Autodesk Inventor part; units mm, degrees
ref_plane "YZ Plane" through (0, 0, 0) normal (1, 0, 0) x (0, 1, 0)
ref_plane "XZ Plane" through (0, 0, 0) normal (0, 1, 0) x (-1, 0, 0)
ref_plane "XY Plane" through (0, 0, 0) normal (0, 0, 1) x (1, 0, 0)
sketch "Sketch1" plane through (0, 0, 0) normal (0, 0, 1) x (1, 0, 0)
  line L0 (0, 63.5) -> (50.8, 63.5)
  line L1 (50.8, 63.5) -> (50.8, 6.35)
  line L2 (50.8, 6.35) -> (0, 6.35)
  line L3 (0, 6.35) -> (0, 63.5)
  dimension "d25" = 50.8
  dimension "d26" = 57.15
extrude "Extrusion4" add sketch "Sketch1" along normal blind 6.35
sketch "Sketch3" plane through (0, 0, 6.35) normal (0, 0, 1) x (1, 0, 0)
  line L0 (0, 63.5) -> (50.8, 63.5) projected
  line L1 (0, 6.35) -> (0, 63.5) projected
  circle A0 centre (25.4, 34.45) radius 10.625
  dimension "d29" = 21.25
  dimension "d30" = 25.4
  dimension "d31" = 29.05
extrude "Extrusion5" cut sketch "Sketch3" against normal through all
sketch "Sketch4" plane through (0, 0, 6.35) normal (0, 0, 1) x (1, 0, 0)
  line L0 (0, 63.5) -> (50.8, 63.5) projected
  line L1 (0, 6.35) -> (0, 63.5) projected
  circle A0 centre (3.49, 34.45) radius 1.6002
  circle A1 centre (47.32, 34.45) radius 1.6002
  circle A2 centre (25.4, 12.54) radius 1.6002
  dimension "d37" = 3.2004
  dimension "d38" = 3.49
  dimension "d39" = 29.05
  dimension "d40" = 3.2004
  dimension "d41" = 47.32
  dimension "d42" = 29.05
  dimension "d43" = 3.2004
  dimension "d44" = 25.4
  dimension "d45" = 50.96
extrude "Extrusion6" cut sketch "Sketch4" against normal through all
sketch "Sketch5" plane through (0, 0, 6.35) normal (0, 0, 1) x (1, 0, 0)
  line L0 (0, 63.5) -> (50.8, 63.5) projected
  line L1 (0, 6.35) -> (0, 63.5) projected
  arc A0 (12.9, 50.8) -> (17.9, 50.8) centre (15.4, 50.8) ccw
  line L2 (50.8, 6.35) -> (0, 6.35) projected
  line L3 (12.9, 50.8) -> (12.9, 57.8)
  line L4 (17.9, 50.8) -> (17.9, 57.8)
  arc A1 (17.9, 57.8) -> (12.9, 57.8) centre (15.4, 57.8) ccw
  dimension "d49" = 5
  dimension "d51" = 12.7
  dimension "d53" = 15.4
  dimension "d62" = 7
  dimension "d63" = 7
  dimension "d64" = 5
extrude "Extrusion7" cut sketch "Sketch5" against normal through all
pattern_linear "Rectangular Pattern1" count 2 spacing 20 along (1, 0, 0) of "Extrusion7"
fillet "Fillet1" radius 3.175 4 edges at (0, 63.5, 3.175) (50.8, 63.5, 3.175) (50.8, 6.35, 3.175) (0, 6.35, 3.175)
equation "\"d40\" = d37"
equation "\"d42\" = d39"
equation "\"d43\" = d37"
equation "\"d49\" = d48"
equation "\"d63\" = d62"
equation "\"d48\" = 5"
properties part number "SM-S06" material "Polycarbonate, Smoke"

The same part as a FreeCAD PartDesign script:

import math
import FreeCAD as App
import Part
import Sketcher
from FreeCAD import Vector
Q = App.Units.Quantity


def edges_at(feature, points):
    """Names of the edges that pass closest to the given points."""
    edges = feature.Shape.Edges
    near = lambda p: min(range(len(edges)), key=lambda i: edges[i].distToShape(Part.Vertex(*p))[0])
    return sorted({f"Edge{near(p) + 1}" for p in points})


def add_polygon(sketch, points):
    """Adds a closed chain of lines whose ends are joined by coincident constraints."""
    first, n = sketch.GeometryCount, len(points)
    for a, b in zip(points, points[1:] + points[:1]):
        sketch.addGeometry(Part.LineSegment(App.Vector(*a, 0), App.Vector(*b, 0)), False)
    for i in range(n):
        sketch.addConstraint(Sketcher.Constraint("Coincident", first + i, 2, first + (i + 1) % n, 1))

doc = App.newDocument("Part")
params = doc.addObject("Spreadsheet::Sheet", "Params")
for row, (alias, value) in enumerate([
    ("sketch1_width", "2 in"),
    ("sketch1_height", "2.25 in"),
    ("pad1_length", "0.25 in"),
    ("sketch3_diameter", "0.126 in"),
    ("linearpattern_pitch", "0.7874016 in"),
    ("fillet_radius", "0.125 in"),
], start=1):
    params.set(f"A{row}", alias)
    params.set(f"B{row}", "=" + value)
    params.setAlias(f"B{row}", alias)

body = doc.addObject("PartDesign::Body", "Body")

# Sketch on XY plane
sketch1 = body.newObject("Sketcher::SketchObject", "Sketch")
sketch1.AttachmentSupport = (doc.getObject("XY_Plane"), [""])
sketch1.MapMode = "FlatFace"
add_polygon(sketch1, [(51, 64), (0, 64), (0, 6), (51, 6)])  # lines 0-3
sketch1.addConstraint(Sketcher.Constraint("Horizontal", 0))
sketch1.addConstraint(Sketcher.Constraint("Vertical", 1))
sketch1.addConstraint(Sketcher.Constraint("Horizontal", 2))
sketch1.addConstraint(Sketcher.Constraint("Vertical", 3))
sketch1.addConstraint(Sketcher.Constraint("PointOnObject", 0, 2, -2))
sketch1.addConstraint(Sketcher.Constraint("DistanceX", 0, 2, 0, 1, Q("2 in")))
sketch1.addConstraint(Sketcher.Constraint("DistanceY", 1, 2, 1, 1, Q("2.25 in")))
sketch1.addConstraint(Sketcher.Constraint("DistanceY", -1, 1, 0, 2, Q("2.5 in")))
sketch1.setExpression("Constraints[9]", "Params.sketch1_width")
sketch1.setExpression("Constraints[10]", "Params.sketch1_height")
pad1 = body.newObject("PartDesign::Pad", "Pad")
pad1.Profile = sketch1
pad1.setExpression("Length", "Params.pad1_length")

# Sketch on XY plane
sketch2 = body.newObject("Sketcher::SketchObject", "Sketch001")
sketch2.AttachmentSupport = (doc.getObject("XY_Plane"), [""])
sketch2.MapMode = "FlatFace"
sketch2.AttachmentOffset = App.Placement(Vector(0, 0, 0.25 * 25.4), App.Rotation())
sketch2.addGeometry(Part.Circle(Vector(25, 34, 0), Vector(0, 0, 1), 11), False)
sketch2.addConstraint(Sketcher.Constraint("DistanceX", -1, 1, 0, 3, Q("1 in")))
sketch2.addConstraint(Sketcher.Constraint("Diameter", 0, 21.25))
sketch2.addConstraint(Sketcher.Constraint("DistanceY", -1, 1, 0, 3, Q("1.3563 in")))
pocket1 = body.newObject("PartDesign::Pocket", "Pocket")
pocket1.Profile = sketch2
pocket1.Type = "ThroughAll"

# Sketch on XY plane
sketch3 = body.newObject("Sketcher::SketchObject", "Sketch002")
sketch3.AttachmentSupport = (doc.getObject("XY_Plane"), [""])
sketch3.MapMode = "FlatFace"
sketch3.AttachmentOffset = App.Placement(Vector(0, 0, 0.25 * 25.4), App.Rotation())
sketch3.addGeometry(Part.Circle(Vector(3.5, 34.5, 0), Vector(0, 0, 1), 1.6), False)
sketch3.addGeometry(Part.Circle(Vector(47.3, 34.5, 0), Vector(0, 0, 1), 1.6), False)
sketch3.addGeometry(Part.Circle(Vector(25.4, 12.5, 0), Vector(0, 0, 1), 1.6), False)
sketch3.addConstraint(Sketcher.Constraint("Equal", 0, 1))
sketch3.addConstraint(Sketcher.Constraint("Equal", 1, 2))
sketch3.addConstraint(Sketcher.Constraint("Horizontal", 0, 3, 1, 3))
sketch3.addConstraint(Sketcher.Constraint("Diameter", 0, Q("0.126 in")))
sketch3.addConstraint(Sketcher.Constraint("DistanceX", -1, 1, 2, 3, Q("1 in")))
sketch3.addConstraint(Sketcher.Constraint("DistanceX", -1, 1, 1, 3, Q("1.863 in")))
sketch3.addConstraint(Sketcher.Constraint("DistanceX", -1, 1, 0, 3, Q("0.1374 in")))
sketch3.addConstraint(Sketcher.Constraint("DistanceY", -1, 1, 0, 3, Q("1.3563 in")))
sketch3.addConstraint(Sketcher.Constraint("DistanceY", -1, 1, 2, 3, Q("0.4937 in")))
sketch3.setExpression("Constraints[3]", "Params.sketch3_diameter")
pocket2 = body.newObject("PartDesign::Pocket", "Pocket001")
pocket2.Profile = sketch3
pocket2.Type = "ThroughAll"

# Sketch on XY plane
sketch4 = body.newObject("Sketcher::SketchObject", "Sketch003")
sketch4.AttachmentSupport = (doc.getObject("XY_Plane"), [""])
sketch4.MapMode = "FlatFace"
sketch4.AttachmentOffset = App.Placement(Vector(0, 0, 0.25 * 25.4), App.Rotation())
sketch4.addGeometry(Part.LineSegment(Vector(12.9, 57.8, 0), Vector(12.9, 50.8, 0)), False)
sketch4.addGeometry(Part.ArcOfCircle(Part.Circle(Vector(15.4, 50.8, 0), Vector(0, 0, 1), 2.5), math.radians(180), math.radians(360)), False)
sketch4.addGeometry(Part.LineSegment(Vector(17.9, 50.8, 0), Vector(17.9, 57.8, 0)), False)
sketch4.addGeometry(Part.ArcOfCircle(Part.Circle(Vector(15.4, 57.8, 0), Vector(0, 0, 1), 2.5), math.radians(0), math.radians(180)), False)
sketch4.addConstraint(Sketcher.Constraint("Tangent", 0, 2, 1, 1))
sketch4.addConstraint(Sketcher.Constraint("Tangent", 1, 2, 2, 1))
sketch4.addConstraint(Sketcher.Constraint("Tangent", 2, 2, 3, 1))
sketch4.addConstraint(Sketcher.Constraint("Tangent", 3, 2, 0, 1))
sketch4.addConstraint(Sketcher.Constraint("Vertical", 0))
sketch4.addConstraint(Sketcher.Constraint("Vertical", 2))
sketch4.addConstraint(Sketcher.Constraint("Radius", 1, 2.5))
sketch4.addConstraint(Sketcher.Constraint("DistanceY", 0, 2, 0, 1, Q("0.2756 in")))
sketch4.addConstraint(Sketcher.Constraint("DistanceY", -1, 1, 1, 3, Q("2 in")))
sketch4.addConstraint(Sketcher.Constraint("DistanceX", -1, 1, 1, 3, Q("0.6063 in")))
pocket3 = body.newObject("PartDesign::Pocket", "Pocket002")
pocket3.Profile = sketch4
pocket3.Type = "ThroughAll"
doc.recompute()

linearpattern = body.newObject("PartDesign::LinearPattern", "LinearPattern")
linearpattern.Originals = [pocket3]
linearpattern.Direction = (doc.getObject("X_Axis"), [""])
linearpattern.Mode = "offset"
linearpattern.setExpression("Offset", "Params.linearpattern_pitch")
linearpattern.Occurrences = 2
body.Tip = linearpattern
doc.recompute()

fillet = body.newObject("PartDesign::Fillet", "Fillet")
fillet.Base = (linearpattern, edges_at(linearpattern, [
    (0, 63.5, 3.175),
    (50.8, 63.5, 3.175),
    (50.8, 6.35, 3.175),
    (0, 6.35, 3.175),
]))
fillet.setExpression("Radius", "Params.fillet_radius")

doc.recompute()
